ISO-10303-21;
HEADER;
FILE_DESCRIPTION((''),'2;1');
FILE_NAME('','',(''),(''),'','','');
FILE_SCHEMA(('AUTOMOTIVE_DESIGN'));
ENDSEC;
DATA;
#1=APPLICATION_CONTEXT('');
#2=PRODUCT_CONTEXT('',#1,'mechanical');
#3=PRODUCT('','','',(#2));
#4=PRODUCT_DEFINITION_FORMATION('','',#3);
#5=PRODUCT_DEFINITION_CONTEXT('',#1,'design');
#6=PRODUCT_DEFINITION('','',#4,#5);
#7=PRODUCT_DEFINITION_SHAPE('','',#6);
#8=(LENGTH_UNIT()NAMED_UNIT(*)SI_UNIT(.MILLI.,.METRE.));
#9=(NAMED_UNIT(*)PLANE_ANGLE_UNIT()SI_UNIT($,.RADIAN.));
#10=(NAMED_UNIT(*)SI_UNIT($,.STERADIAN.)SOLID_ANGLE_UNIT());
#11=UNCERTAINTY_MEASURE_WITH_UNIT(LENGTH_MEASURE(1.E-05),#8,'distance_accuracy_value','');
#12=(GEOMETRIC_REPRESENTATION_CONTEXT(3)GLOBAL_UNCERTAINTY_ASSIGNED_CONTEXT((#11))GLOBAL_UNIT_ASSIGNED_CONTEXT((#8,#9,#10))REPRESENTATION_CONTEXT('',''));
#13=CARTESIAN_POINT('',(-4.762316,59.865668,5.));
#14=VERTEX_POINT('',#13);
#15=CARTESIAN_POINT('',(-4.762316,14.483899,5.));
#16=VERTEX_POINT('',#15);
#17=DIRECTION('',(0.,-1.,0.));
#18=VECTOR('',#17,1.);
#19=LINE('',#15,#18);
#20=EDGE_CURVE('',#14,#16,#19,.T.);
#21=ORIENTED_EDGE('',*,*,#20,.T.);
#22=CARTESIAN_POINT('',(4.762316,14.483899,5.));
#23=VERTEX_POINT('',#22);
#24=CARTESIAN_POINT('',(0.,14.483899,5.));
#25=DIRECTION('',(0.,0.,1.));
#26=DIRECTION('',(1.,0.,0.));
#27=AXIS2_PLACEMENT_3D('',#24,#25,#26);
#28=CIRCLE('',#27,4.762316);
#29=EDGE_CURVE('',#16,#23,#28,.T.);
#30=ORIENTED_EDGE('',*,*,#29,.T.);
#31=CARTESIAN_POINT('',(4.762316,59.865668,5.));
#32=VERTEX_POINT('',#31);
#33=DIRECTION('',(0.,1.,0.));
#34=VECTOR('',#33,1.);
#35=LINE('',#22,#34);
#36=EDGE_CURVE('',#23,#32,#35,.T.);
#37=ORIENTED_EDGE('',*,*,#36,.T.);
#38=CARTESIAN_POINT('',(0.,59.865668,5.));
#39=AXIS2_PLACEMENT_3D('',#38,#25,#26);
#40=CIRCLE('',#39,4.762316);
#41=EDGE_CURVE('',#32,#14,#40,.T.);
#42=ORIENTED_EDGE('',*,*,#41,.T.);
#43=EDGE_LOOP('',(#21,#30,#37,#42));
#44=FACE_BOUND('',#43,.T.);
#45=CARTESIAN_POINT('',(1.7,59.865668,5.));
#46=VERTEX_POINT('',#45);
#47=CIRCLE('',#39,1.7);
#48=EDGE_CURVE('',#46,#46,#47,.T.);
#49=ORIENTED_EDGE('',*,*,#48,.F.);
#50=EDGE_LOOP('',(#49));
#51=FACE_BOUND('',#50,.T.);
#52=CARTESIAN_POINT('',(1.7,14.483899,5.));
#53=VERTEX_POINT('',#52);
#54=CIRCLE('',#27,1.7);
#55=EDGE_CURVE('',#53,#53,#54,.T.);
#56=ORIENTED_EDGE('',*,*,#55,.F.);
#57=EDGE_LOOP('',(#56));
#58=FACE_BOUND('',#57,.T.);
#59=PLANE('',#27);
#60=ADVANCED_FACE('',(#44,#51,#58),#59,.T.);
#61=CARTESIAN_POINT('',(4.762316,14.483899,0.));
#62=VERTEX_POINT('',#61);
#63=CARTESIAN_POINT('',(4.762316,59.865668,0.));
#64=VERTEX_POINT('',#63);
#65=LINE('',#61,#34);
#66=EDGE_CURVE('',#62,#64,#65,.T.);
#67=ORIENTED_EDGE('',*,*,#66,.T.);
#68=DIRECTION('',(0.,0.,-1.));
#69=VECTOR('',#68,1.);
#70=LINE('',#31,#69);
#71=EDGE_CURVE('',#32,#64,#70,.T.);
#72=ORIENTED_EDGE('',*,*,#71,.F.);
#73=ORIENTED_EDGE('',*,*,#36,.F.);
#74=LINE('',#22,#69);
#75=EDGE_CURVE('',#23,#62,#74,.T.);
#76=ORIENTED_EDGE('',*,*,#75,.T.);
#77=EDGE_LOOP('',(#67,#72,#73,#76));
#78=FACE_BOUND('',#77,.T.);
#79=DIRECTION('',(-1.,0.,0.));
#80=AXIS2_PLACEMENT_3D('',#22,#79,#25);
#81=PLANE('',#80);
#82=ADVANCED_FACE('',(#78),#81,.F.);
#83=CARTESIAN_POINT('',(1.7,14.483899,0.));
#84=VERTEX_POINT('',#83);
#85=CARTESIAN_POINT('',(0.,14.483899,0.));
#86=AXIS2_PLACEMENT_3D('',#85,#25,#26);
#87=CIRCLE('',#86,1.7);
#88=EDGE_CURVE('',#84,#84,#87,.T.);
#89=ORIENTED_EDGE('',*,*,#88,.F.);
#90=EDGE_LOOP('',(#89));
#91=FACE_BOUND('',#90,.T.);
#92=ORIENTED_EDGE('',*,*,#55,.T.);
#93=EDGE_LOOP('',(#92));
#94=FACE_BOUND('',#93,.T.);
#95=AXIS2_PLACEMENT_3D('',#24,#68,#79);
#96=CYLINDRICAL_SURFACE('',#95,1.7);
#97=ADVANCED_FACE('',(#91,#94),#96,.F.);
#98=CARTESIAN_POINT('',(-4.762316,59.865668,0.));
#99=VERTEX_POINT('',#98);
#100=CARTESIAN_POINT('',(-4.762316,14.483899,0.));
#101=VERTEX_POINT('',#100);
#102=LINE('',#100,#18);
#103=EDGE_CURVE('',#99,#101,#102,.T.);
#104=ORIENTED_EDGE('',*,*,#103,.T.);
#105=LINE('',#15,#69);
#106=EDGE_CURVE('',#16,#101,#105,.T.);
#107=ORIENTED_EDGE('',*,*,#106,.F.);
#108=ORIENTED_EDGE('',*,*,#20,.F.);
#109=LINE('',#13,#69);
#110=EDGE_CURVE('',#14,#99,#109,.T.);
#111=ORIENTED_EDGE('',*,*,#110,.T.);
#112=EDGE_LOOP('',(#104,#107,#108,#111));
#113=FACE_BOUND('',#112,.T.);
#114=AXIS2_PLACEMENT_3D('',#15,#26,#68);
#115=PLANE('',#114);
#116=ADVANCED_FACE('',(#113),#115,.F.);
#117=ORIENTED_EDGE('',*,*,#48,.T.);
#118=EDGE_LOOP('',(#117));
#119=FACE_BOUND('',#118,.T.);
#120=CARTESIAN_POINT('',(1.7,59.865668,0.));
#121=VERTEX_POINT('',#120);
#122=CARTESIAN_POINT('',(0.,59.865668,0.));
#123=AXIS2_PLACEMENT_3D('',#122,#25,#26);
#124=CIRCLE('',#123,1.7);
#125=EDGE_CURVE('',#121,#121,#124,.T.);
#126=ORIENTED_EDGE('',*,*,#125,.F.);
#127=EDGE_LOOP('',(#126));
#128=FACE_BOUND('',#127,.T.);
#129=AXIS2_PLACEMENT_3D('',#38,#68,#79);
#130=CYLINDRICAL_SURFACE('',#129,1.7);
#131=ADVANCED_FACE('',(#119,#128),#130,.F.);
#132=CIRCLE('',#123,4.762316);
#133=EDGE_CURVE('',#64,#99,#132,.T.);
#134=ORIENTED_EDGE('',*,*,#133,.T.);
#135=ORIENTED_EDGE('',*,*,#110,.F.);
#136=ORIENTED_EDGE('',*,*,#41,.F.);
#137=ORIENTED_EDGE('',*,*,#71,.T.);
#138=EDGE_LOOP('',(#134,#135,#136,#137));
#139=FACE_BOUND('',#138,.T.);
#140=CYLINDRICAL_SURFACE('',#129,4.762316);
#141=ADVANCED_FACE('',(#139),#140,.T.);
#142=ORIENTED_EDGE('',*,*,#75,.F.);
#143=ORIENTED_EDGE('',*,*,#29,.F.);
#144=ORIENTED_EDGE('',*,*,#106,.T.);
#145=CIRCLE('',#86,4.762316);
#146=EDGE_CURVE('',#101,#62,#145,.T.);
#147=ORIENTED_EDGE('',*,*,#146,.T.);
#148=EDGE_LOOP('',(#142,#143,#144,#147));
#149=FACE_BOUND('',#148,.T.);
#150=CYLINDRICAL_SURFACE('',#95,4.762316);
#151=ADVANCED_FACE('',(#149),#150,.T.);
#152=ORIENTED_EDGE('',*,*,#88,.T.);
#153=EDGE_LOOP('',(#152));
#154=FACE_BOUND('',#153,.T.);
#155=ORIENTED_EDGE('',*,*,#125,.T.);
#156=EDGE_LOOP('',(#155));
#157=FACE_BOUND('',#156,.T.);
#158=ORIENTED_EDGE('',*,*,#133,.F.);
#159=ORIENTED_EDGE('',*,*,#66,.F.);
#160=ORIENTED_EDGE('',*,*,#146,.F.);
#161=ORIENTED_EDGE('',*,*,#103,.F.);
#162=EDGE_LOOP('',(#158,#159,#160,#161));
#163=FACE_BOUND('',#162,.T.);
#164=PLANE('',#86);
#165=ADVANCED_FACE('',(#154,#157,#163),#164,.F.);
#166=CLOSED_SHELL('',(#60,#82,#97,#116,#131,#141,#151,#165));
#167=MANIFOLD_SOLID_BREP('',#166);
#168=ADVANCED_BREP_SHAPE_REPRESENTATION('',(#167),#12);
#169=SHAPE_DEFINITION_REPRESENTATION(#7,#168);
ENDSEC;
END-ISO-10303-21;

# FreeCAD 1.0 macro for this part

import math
import FreeCAD as App
import Part
import Sketcher

V = App.Vector

doc = App.newDocument("Part")
params = doc.addObject("Spreadsheet::Sheet", "Params")
for row, (alias, value) in enumerate([
    ("sketch1_diameter", "3.4 mm"),
    ("pad1_length", "5 mm"),
], start=1):
    params.set(f"A{row}", alias)
    params.set(f"B{row}", "=" + value)
    params.setAlias(f"B{row}", alias)

body = doc.addObject("PartDesign::Body", "Body")

sketch1 = body.newObject("Sketcher::SketchObject", "Sketch")
sketch1.AttachmentSupport = (doc.getObject("XY_Plane"), [""])
sketch1.MapMode = "FlatFace"
sketch1.addGeometry([
    Part.LineSegment(V(-4.8, 59.9, 0), V(-4.8, 14.5, 0)),
    Part.ArcOfCircle(Part.Circle(V(0, 14.5, 0), V(0, 0, 1), 4.8), math.radians(-180), math.radians(0)),
    Part.LineSegment(V(4.8, 14.5, 0), V(4.8, 59.9, 0)),
    Part.ArcOfCircle(Part.Circle(V(0, 59.9, 0), V(0, 0, 1), 4.8), math.radians(0), math.radians(180)),
    Part.Circle(V(0, 14.5, 0), V(0, 0, 1), 1.7),
    Part.Circle(V(0, 59.9, 0), V(0, 0, 1), 1.7),
], False)
sketch1.addConstraint([
    Sketcher.Constraint("Tangent", 0, 2, 1, 1),
    Sketcher.Constraint("Tangent", 1, 2, 2, 1),
    Sketcher.Constraint("Tangent", 2, 2, 3, 1),
    Sketcher.Constraint("Tangent", 3, 2, 0, 1),
    Sketcher.Constraint("Vertical", 0),
    Sketcher.Constraint("Vertical", 2),
    Sketcher.Constraint("Coincident", 4, 3, 1, 3),
    Sketcher.Constraint("Coincident", 5, 3, 3, 3),
    Sketcher.Constraint("Equal", 4, 5),
    Sketcher.Constraint("PointOnObject", 1, 3, -2),
    Sketcher.Constraint("Diameter", 4, 3.4),
    Sketcher.Constraint("Radius", 1, 4.762316),
    Sketcher.Constraint("DistanceY", 0, 2, 0, 1, 45.38177),
    Sketcher.Constraint("DistanceY", -1, 1, 1, 3, 14.483899),
])
sketch1.setExpression("Constraints[10]", "Params.sketch1_diameter")
pad1 = body.newObject("PartDesign::Pad", "Pad")
pad1.Profile = sketch1
pad1.setExpression("Length", "Params.pad1_length")

doc.recompute()
